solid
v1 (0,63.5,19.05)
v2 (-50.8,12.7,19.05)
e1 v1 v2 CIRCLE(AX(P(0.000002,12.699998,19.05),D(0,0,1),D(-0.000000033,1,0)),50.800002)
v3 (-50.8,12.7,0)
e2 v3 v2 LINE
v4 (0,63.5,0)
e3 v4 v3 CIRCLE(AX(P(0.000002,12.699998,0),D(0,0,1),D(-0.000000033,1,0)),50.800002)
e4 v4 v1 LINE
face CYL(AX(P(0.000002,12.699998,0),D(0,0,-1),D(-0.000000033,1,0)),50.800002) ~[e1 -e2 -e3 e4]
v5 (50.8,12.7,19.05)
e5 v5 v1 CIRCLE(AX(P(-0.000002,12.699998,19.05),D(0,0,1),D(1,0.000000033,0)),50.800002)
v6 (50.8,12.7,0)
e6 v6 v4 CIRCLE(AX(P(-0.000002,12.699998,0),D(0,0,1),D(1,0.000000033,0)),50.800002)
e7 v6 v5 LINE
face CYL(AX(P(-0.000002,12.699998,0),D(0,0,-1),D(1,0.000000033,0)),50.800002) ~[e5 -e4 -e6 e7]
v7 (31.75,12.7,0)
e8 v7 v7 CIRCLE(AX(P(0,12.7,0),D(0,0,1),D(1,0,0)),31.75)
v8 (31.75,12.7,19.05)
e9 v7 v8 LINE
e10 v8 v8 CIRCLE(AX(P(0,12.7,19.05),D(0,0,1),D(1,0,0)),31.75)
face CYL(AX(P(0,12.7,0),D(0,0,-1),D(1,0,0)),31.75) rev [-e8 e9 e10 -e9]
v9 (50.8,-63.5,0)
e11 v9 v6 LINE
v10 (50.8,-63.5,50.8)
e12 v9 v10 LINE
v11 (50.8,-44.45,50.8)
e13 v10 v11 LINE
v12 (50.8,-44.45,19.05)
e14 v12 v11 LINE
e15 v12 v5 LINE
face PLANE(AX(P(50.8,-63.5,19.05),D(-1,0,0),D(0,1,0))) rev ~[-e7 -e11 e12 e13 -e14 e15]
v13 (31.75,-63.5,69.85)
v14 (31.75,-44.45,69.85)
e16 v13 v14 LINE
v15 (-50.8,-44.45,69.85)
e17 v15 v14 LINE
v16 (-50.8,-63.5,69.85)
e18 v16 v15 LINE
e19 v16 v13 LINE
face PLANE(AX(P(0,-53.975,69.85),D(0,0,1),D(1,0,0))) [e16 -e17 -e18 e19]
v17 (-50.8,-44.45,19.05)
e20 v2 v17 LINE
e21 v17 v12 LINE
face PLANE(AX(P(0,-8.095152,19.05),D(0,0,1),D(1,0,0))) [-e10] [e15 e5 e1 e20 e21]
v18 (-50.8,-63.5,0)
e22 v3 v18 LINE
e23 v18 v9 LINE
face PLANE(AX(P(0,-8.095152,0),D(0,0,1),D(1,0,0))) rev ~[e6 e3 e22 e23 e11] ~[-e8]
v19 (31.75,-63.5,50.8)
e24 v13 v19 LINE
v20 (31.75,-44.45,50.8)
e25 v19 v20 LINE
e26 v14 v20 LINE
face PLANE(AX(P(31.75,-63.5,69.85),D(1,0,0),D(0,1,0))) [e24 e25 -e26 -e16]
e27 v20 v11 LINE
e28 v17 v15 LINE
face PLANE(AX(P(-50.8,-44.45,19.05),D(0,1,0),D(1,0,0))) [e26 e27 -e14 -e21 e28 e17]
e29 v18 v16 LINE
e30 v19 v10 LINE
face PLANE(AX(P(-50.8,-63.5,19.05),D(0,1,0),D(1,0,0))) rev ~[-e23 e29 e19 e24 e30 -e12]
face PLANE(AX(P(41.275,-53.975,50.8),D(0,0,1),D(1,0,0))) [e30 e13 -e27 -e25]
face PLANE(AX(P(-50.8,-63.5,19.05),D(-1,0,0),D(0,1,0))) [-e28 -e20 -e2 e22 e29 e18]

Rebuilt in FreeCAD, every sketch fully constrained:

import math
import FreeCAD as App
import Part
import Sketcher
Q = App.Units.Quantity

doc = App.newDocument("Part")
body = doc.addObject("PartDesign::Body", "Body")

# Sketch on XY plane
sketch1 = body.newObject("Sketcher::SketchObject", "Sketch")
sketch1.AttachmentSupport = (doc.getObject("XY_Plane"), [""])
sketch1.MapMode = "FlatFace"
sketch1.addGeometry([
    Part.ArcOfCircle(Part.Circle(App.Vector(0, 13, 0), App.Vector(0, 0, 1), 51), math.radians(0), math.radians(90)),  # 0
    Part.ArcOfCircle(Part.Circle(App.Vector(0, 13, 0), App.Vector(0, 0, 1), 51), math.radians(90), math.radians(180)),  # 1
    Part.LineSegment(App.Vector(-51, 13, 0), App.Vector(-51, -64, 0)),  # 2
    Part.LineSegment(App.Vector(-51, -64, 0), App.Vector(51, -64, 0)),  # 3
    Part.LineSegment(App.Vector(51, -64, 0), App.Vector(51, 13, 0)),  # 4
    Part.Circle(App.Vector(0, 13, 0), App.Vector(0, 0, 1), 32),  # 5
], False)
sketch1.addConstraint([
    Sketcher.Constraint("Tangent", 0, 2, 1, 1),
    Sketcher.Constraint("Tangent", 1, 2, 2, 1),
    Sketcher.Constraint("Coincident", 2, 2, 3, 1),
    Sketcher.Constraint("Coincident", 3, 2, 4, 1),
    Sketcher.Constraint("Tangent", 4, 2, 0, 1),
    Sketcher.Constraint("Vertical", 2),
    Sketcher.Constraint("Horizontal", 3),
    Sketcher.Constraint("Vertical", 4),
    Sketcher.Constraint("Coincident", 5, 3, 0, 3),
    Sketcher.Constraint("Equal", 0, 1),
    Sketcher.Constraint("PointOnObject", 0, 3, -2),
    Sketcher.Constraint("PointOnObject", 0, 2, -2),
    Sketcher.Constraint("Radius", 0, Q("2.0000001 in")),
    Sketcher.Constraint("Diameter", 5, Q("2.5 in")),
    Sketcher.Constraint("DistanceY", 2, 2, 2, 1, Q("3 in")),
    Sketcher.Constraint("DistanceY", -1, 1, 0, 3, Q("0.4999999 in")),
])
pad1 = body.newObject("PartDesign::Pad", "Pad")
pad1.Profile = sketch1
pad1.Length = Q("0.75 in")

# Sketch on XY plane
sketch2 = body.newObject("Sketcher::SketchObject", "Sketch001")
sketch2.AttachmentSupport = (doc.getObject("XY_Plane"), [""])
sketch2.MapMode = "FlatFace"
sketch2.AttachmentOffset = App.Placement(App.Vector(0, 0, 0.75 * 25.4), App.Rotation())
sketch2.addGeometry([
    Part.LineSegment(App.Vector(-51, -44, 0), App.Vector(-51, -64, 0)),
    Part.LineSegment(App.Vector(-51, -64, 0), App.Vector(51, -64, 0)),
    Part.LineSegment(App.Vector(51, -64, 0), App.Vector(51, -44, 0)),
    Part.LineSegment(App.Vector(51, -44, 0), App.Vector(-51, -44, 0)),
], False)
sketch2.addConstraint([
    Sketcher.Constraint("Coincident", 0, 2, 1, 1),
    Sketcher.Constraint("Coincident", 1, 2, 2, 1),
    Sketcher.Constraint("Coincident", 2, 2, 3, 1),
    Sketcher.Constraint("Coincident", 3, 2, 0, 1),
    Sketcher.Constraint("Vertical", 0),
    Sketcher.Constraint("Horizontal", 1),
    Sketcher.Constraint("Vertical", 2),
    Sketcher.Constraint("Horizontal", 3),
    Sketcher.Constraint("DistanceX", 1, 1, 1, 2, Q("4 in")),
    Sketcher.Constraint("DistanceX", 0, 2, -1, 1, Q("2 in")),
    Sketcher.Constraint("DistanceY", 0, 2, 0, 1, Q("0.75 in")),
    Sketcher.Constraint("DistanceY", 0, 2, -1, 1, Q("2.5 in")),
])
pad2 = body.newObject("PartDesign::Pad", "Pad001")
pad2.Profile = sketch2
pad2.Length = Q("2 in")

# Sketch on XY plane
sketch3 = body.newObject("Sketcher::SketchObject", "Sketch002")
sketch3.AttachmentSupport = (doc.getObject("XY_Plane"), [""])
sketch3.MapMode = "FlatFace"
sketch3.AttachmentOffset = App.Placement(App.Vector(0, 0, 2.75 * 25.4), App.Rotation())
sketch3.addGeometry([
    Part.LineSegment(App.Vector(32, -44, 0), App.Vector(32, -64, 0)),
    Part.LineSegment(App.Vector(32, -64, 0), App.Vector(51, -64, 0)),
    Part.LineSegment(App.Vector(51, -64, 0), App.Vector(51, -44, 0)),
    Part.LineSegment(App.Vector(51, -44, 0), App.Vector(32, -44, 0)),
], False)
sketch3.addConstraint([
    Sketcher.Constraint("Coincident", 0, 2, 1, 1),
    Sketcher.Constraint("Coincident", 1, 2, 2, 1),
    Sketcher.Constraint("Coincident", 2, 2, 3, 1),
    Sketcher.Constraint("Coincident", 3, 2, 0, 1),
    Sketcher.Constraint("Vertical", 0),
    Sketcher.Constraint("Horizontal", 1),
    Sketcher.Constraint("Vertical", 2),
    Sketcher.Constraint("Horizontal", 3),
    Sketcher.Constraint("Equal", 3, 0),
    Sketcher.Constraint("DistanceX", -1, 1, 1, 2, Q("2 in")),
    Sketcher.Constraint("DistanceX", 1, 1, 1, 2, Q("0.75 in")),
    Sketcher.Constraint("DistanceY", 0, 2, -1, 1, Q("2.5 in")),
])
pocket1 = body.newObject("PartDesign::Pocket", "Pocket")
pocket1.Profile = sketch3
pocket1.Length = Q("0.75 in")

doc.recompute()
